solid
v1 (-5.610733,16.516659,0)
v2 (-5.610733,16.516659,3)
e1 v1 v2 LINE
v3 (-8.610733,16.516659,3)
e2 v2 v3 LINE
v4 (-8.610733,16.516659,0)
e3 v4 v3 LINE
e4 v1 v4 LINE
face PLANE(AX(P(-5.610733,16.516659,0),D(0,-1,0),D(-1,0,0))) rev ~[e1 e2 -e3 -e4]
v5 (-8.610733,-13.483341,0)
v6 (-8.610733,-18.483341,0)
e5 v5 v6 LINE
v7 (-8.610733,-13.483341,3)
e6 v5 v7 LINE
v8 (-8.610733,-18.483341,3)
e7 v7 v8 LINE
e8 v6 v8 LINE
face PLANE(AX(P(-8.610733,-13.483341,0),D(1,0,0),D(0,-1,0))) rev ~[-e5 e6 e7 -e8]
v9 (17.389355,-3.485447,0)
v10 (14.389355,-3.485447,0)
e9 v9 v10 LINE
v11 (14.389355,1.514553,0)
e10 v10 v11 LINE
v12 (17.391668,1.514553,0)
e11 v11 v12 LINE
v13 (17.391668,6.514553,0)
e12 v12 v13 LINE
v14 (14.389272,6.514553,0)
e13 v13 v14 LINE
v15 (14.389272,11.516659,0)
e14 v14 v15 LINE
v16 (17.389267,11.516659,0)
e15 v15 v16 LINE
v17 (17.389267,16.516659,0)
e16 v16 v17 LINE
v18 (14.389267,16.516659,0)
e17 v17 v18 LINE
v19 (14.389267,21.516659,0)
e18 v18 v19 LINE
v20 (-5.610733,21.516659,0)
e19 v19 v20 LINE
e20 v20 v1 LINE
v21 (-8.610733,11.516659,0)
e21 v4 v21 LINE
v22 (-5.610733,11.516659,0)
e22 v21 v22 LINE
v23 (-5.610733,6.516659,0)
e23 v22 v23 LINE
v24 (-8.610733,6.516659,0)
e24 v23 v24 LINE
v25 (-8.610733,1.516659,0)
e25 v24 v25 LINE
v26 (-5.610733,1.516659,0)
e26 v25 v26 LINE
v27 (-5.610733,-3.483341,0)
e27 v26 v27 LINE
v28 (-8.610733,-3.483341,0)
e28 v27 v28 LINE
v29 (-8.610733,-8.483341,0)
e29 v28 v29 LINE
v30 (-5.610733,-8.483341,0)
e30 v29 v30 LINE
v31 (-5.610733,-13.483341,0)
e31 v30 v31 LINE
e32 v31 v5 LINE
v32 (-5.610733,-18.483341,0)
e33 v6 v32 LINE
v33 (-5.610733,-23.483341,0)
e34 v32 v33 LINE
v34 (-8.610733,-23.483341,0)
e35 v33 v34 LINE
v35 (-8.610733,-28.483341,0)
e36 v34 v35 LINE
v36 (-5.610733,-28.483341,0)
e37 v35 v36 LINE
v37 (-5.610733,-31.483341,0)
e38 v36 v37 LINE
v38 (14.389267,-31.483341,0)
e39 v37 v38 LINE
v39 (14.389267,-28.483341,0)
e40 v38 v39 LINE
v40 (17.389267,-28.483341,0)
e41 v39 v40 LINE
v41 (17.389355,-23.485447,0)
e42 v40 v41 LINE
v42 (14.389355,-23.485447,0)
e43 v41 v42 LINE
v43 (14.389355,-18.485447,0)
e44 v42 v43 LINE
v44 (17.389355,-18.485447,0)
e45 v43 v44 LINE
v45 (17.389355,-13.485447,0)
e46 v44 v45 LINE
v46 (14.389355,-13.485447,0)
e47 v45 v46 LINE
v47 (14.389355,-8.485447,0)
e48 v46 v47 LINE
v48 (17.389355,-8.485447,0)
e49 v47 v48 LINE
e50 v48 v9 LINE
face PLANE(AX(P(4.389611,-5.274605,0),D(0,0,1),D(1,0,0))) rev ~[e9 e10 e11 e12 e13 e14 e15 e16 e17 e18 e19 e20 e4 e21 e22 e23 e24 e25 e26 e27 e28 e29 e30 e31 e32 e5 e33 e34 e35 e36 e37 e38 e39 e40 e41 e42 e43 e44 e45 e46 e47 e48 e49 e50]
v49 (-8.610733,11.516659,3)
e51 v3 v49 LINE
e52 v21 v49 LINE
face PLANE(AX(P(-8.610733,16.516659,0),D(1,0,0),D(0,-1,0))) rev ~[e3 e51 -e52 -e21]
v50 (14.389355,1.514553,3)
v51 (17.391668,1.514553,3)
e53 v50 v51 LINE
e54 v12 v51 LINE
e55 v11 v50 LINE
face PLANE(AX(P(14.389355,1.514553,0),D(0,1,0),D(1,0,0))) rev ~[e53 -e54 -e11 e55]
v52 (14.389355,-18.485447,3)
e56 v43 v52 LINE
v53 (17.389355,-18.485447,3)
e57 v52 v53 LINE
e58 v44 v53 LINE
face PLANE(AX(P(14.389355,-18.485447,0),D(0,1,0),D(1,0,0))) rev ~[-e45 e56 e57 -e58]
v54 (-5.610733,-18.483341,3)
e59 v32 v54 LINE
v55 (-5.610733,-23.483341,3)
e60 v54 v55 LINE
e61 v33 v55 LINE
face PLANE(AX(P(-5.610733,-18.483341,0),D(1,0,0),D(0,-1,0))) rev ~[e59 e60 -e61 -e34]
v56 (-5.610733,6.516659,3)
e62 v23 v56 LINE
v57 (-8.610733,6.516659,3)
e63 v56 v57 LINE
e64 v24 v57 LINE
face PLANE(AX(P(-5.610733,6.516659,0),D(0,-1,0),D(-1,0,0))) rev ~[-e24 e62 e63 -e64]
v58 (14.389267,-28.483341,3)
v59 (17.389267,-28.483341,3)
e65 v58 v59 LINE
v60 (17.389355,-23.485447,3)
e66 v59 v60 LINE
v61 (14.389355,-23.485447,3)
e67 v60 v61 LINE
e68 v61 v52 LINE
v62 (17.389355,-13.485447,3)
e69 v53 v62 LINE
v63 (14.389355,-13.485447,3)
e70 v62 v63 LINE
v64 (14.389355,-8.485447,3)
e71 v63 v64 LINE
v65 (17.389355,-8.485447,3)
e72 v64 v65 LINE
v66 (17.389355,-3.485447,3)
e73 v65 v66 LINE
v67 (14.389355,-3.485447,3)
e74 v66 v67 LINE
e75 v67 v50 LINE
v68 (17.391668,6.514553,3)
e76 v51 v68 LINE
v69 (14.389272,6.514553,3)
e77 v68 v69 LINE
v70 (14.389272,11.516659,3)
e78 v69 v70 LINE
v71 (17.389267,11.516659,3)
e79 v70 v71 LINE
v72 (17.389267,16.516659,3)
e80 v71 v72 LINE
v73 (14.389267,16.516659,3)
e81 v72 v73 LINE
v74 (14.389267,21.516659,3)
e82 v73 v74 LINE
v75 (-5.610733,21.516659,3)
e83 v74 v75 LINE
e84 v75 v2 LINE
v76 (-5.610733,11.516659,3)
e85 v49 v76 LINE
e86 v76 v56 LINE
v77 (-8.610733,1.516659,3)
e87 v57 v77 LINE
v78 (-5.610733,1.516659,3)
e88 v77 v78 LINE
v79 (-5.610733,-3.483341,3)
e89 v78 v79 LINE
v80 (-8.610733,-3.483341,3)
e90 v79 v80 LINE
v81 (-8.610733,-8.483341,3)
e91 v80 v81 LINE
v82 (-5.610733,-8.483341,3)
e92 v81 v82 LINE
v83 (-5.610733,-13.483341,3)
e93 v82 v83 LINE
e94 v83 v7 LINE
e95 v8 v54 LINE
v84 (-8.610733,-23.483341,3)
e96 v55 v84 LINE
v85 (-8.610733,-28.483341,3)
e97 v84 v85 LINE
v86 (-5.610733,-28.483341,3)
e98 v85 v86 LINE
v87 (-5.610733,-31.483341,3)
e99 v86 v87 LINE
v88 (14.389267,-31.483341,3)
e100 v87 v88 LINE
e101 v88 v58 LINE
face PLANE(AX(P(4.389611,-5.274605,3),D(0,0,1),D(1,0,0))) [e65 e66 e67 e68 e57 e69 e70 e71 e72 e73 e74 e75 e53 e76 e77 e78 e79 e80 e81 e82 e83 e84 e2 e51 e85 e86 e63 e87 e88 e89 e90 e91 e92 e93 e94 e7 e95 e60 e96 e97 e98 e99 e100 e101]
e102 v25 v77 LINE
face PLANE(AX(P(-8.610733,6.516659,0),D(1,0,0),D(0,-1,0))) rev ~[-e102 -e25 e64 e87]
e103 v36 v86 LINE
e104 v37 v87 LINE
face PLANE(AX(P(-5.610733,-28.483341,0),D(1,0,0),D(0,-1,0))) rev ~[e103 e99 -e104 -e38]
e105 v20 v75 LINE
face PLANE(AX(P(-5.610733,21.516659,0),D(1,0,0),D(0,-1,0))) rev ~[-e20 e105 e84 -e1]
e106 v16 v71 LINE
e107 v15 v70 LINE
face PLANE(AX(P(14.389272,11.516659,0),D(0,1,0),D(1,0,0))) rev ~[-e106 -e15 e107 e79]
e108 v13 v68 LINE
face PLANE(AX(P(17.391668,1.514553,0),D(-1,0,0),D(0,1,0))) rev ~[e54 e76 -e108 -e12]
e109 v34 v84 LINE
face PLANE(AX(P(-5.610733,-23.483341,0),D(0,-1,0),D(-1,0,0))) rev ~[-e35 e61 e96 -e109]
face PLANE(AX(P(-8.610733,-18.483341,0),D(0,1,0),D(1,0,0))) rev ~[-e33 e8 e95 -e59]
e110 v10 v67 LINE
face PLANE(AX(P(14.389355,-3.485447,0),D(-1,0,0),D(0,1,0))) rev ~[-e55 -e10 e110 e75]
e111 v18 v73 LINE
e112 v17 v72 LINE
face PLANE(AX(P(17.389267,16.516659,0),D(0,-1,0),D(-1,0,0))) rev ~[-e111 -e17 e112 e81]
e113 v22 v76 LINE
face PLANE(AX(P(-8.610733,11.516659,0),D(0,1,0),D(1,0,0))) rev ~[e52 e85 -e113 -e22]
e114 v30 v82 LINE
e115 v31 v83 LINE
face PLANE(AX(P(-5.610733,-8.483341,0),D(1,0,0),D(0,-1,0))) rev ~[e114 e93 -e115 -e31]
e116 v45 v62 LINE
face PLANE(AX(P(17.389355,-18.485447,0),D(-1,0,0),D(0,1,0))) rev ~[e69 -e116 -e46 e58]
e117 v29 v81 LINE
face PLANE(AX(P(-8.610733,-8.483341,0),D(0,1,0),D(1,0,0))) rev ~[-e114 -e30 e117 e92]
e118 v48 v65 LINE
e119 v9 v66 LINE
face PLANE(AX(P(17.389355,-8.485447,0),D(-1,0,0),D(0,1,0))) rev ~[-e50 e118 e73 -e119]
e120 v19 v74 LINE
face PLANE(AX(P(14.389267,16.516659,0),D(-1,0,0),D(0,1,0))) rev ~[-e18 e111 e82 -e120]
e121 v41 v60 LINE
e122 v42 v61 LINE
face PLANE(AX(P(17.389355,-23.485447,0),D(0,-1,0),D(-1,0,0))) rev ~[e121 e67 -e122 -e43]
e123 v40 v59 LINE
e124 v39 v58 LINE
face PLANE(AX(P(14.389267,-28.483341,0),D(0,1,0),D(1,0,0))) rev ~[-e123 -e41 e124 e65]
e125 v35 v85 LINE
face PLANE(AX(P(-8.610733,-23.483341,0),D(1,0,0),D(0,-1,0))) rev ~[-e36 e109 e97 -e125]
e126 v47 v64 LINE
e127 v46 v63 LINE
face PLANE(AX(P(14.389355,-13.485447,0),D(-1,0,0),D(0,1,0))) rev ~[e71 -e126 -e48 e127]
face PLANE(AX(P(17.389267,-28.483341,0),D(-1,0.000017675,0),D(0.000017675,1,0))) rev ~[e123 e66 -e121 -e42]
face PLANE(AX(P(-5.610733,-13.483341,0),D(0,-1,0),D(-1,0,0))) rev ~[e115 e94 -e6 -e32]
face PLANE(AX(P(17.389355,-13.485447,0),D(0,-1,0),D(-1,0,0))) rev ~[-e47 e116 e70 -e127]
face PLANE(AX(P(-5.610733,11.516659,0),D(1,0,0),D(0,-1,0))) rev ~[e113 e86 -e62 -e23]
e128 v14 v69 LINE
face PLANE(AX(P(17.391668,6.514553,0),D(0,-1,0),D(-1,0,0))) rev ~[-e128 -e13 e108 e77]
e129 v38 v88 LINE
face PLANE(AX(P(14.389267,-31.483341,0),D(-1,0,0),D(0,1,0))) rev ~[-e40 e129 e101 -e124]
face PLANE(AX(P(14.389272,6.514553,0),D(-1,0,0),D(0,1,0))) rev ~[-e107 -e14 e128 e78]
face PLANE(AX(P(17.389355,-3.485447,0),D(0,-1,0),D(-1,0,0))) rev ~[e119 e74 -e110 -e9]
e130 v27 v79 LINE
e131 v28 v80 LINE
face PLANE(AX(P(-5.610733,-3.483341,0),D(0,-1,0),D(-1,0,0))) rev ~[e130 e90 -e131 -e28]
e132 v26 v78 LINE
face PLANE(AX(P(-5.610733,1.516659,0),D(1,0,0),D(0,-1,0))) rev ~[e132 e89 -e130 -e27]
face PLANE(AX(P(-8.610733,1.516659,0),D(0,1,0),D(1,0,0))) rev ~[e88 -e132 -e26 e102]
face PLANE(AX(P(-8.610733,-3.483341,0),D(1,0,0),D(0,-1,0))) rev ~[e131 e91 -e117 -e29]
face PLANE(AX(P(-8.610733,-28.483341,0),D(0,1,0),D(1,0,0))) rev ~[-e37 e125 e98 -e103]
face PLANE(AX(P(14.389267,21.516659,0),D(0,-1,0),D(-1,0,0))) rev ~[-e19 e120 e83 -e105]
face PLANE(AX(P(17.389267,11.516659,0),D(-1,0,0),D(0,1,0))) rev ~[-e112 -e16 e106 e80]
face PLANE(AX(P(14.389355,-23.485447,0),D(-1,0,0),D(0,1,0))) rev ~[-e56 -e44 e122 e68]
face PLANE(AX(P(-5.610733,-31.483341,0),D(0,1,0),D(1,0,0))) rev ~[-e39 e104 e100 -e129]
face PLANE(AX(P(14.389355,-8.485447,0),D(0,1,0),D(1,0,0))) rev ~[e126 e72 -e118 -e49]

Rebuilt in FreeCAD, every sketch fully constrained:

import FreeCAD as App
import Part
import Sketcher
from FreeCAD import Vector

doc = App.newDocument("Part")
body = doc.addObject("PartDesign::Body", "Body")

sketch1 = doc.addObject("Sketcher::SketchObject", "Sketch")
body.addObject(sketch1)
sketch1.AttachmentSupport = (doc.XY_Plane, [""])
sketch1.MapMode = "FlatFace"
sketch1.addGeometry([
    Part.LineSegment(Vector(-5.6, 21.5, 0), Vector(-5.6, 16.5, 0)),
    Part.LineSegment(Vector(-5.6, 16.5, 0), Vector(-8.6, 16.5, 0)),
    Part.LineSegment(Vector(-8.6, 16.5, 0), Vector(-8.6, 11.5, 0)),
    Part.LineSegment(Vector(-8.6, 11.5, 0), Vector(-5.6, 11.5, 0)),
    Part.LineSegment(Vector(-5.6, 11.5, 0), Vector(-5.6, 6.5, 0)),
    Part.LineSegment(Vector(-5.6, 6.5, 0), Vector(-8.6, 6.5, 0)),
    Part.LineSegment(Vector(-8.6, 6.5, 0), Vector(-8.6, 1.5, 0)),
    Part.LineSegment(Vector(-8.6, 1.5, 0), Vector(-5.6, 1.5, 0)),
    Part.LineSegment(Vector(-5.6, 1.5, 0), Vector(-5.6, -3.5, 0)),
    Part.LineSegment(Vector(-5.6, -3.5, 0), Vector(-8.6, -3.5, 0)),
    Part.LineSegment(Vector(-8.6, -3.5, 0), Vector(-8.6, -8.5, 0)),
    Part.LineSegment(Vector(-8.6, -8.5, 0), Vector(-5.6, -8.5, 0)),
    Part.LineSegment(Vector(-5.6, -8.5, 0), Vector(-5.6, -13.5, 0)),
    Part.LineSegment(Vector(-5.6, -13.5, 0), Vector(-8.6, -13.5, 0)),
    Part.LineSegment(Vector(-8.6, -13.5, 0), Vector(-8.6, -18.5, 0)),
    Part.LineSegment(Vector(-8.6, -18.5, 0), Vector(-5.6, -18.5, 0)),
    Part.LineSegment(Vector(-5.6, -18.5, 0), Vector(-5.6, -23.5, 0)),
    Part.LineSegment(Vector(-5.6, -23.5, 0), Vector(-8.6, -23.5, 0)),
    Part.LineSegment(Vector(-8.6, -23.5, 0), Vector(-8.6, -28.5, 0)),
    Part.LineSegment(Vector(-8.6, -28.5, 0), Vector(-5.6, -28.5, 0)),
    Part.LineSegment(Vector(-5.6, -28.5, 0), Vector(-5.6, -31.5, 0)),
    Part.LineSegment(Vector(-5.6, -31.5, 0), Vector(14.4, -31.5, 0)),
    Part.LineSegment(Vector(14.4, -31.5, 0), Vector(14.4, -28.5, 0)),
    Part.LineSegment(Vector(14.4, -28.5, 0), Vector(17.4, -28.5, 0)),
    Part.LineSegment(Vector(17.4, -28.5, 0), Vector(17.4, -23.5, 0)),
    Part.LineSegment(Vector(17.4, -23.5, 0), Vector(14.4, -23.5, 0)),
    Part.LineSegment(Vector(14.4, -23.5, 0), Vector(14.4, -18.5, 0)),
    Part.LineSegment(Vector(14.4, -18.5, 0), Vector(17.4, -18.5, 0)),
    Part.LineSegment(Vector(17.4, -18.5, 0), Vector(17.4, -13.5, 0)),
    Part.LineSegment(Vector(17.4, -13.5, 0), Vector(14.4, -13.5, 0)),
    Part.LineSegment(Vector(14.4, -13.5, 0), Vector(14.4, -8.5, 0)),
    Part.LineSegment(Vector(14.4, -8.5, 0), Vector(17.4, -8.5, 0)),
    Part.LineSegment(Vector(17.4, -8.5, 0), Vector(17.4, -3.5, 0)),
    Part.LineSegment(Vector(17.4, -3.5, 0), Vector(14.4, -3.5, 0)),
    Part.LineSegment(Vector(14.4, -3.5, 0), Vector(14.4, 1.5, 0)),
    Part.LineSegment(Vector(14.4, 1.5, 0), Vector(17.4, 1.5, 0)),
    Part.LineSegment(Vector(17.4, 1.5, 0), Vector(17.4, 6.5, 0)),
    Part.LineSegment(Vector(17.4, 6.5, 0), Vector(14.4, 6.5, 0)),
    Part.LineSegment(Vector(14.4, 6.5, 0), Vector(14.4, 11.5, 0)),
    Part.LineSegment(Vector(14.4, 11.5, 0), Vector(17.4, 11.5, 0)),
    Part.LineSegment(Vector(17.4, 11.5, 0), Vector(17.4, 16.5, 0)),
    Part.LineSegment(Vector(17.4, 16.5, 0), Vector(14.4, 16.5, 0)),
    Part.LineSegment(Vector(14.4, 16.5, 0), Vector(14.4, 21.5, 0)),
    Part.LineSegment(Vector(14.4, 21.5, 0), Vector(-5.6, 21.5, 0)),
], False)
sketch1.addConstraint([
    Sketcher.Constraint("Coincident", 0, 2, 1, 1),
    Sketcher.Constraint("Coincident", 1, 2, 2, 1),
    Sketcher.Constraint("Coincident", 2, 2, 3, 1),
    Sketcher.Constraint("Coincident", 3, 2, 4, 1),
    Sketcher.Constraint("Coincident", 4, 2, 5, 1),
    Sketcher.Constraint("Coincident", 5, 2, 6, 1),
    Sketcher.Constraint("Coincident", 6, 2, 7, 1),
    Sketcher.Constraint("Coincident", 7, 2, 8, 1),
    Sketcher.Constraint("Coincident", 8, 2, 9, 1),
    Sketcher.Constraint("Coincident", 9, 2, 10, 1),
    Sketcher.Constraint("Coincident", 10, 2, 11, 1),
    Sketcher.Constraint("Coincident", 11, 2, 12, 1),
    Sketcher.Constraint("Coincident", 12, 2, 13, 1),
    Sketcher.Constraint("Coincident", 13, 2, 14, 1),
    Sketcher.Constraint("Coincident", 14, 2, 15, 1),
    Sketcher.Constraint("Coincident", 15, 2, 16, 1),
    Sketcher.Constraint("Coincident", 16, 2, 17, 1),
    Sketcher.Constraint("Coincident", 17, 2, 18, 1),
    Sketcher.Constraint("Coincident", 18, 2, 19, 1),
    Sketcher.Constraint("Coincident", 19, 2, 20, 1),
    Sketcher.Constraint("Coincident", 20, 2, 21, 1),
    Sketcher.Constraint("Coincident", 21, 2, 22, 1),
    Sketcher.Constraint("Coincident", 22, 2, 23, 1),
    Sketcher.Constraint("Coincident", 23, 2, 24, 1),
    Sketcher.Constraint("Coincident", 24, 2, 25, 1),
    Sketcher.Constraint("Coincident", 25, 2, 26, 1),
    Sketcher.Constraint("Coincident", 26, 2, 27, 1),
    Sketcher.Constraint("Coincident", 27, 2, 28, 1),
    Sketcher.Constraint("Coincident", 28, 2, 29, 1),
    Sketcher.Constraint("Coincident", 29, 2, 30, 1),
    Sketcher.Constraint("Coincident", 30, 2, 31, 1),
    Sketcher.Constraint("Coincident", 31, 2, 32, 1),
    Sketcher.Constraint("Coincident", 32, 2, 33, 1),
    Sketcher.Constraint("Coincident", 33, 2, 34, 1),
    Sketcher.Constraint("Coincident", 34, 2, 35, 1),
    Sketcher.Constraint("Coincident", 35, 2, 36, 1),
    Sketcher.Constraint("Coincident", 36, 2, 37, 1),
    Sketcher.Constraint("Coincident", 37, 2, 38, 1),
    Sketcher.Constraint("Coincident", 38, 2, 39, 1),
    Sketcher.Constraint("Coincident", 39, 2, 40, 1),
    Sketcher.Constraint("Coincident", 40, 2, 41, 1),
    Sketcher.Constraint("Coincident", 41, 2, 42, 1),
    Sketcher.Constraint("Coincident", 42, 2, 43, 1),
    Sketcher.Constraint("Coincident", 43, 2, 0, 1),
    Sketcher.Constraint("Vertical", 0),
    Sketcher.Constraint("Horizontal", 1),
    Sketcher.Constraint("Vertical", 2),
    Sketcher.Constraint("Horizontal", 3),
    Sketcher.Constraint("Vertical", 4),
    Sketcher.Constraint("Horizontal", 5),
    Sketcher.Constraint("Vertical", 6),
    Sketcher.Constraint("Horizontal", 7),
    Sketcher.Constraint("Vertical", 8),
    Sketcher.Constraint("Horizontal", 9),
    Sketcher.Constraint("Vertical", 10),
    Sketcher.Constraint("Horizontal", 11),
    Sketcher.Constraint("Vertical", 12),
    Sketcher.Constraint("Horizontal", 13),
    Sketcher.Constraint("Vertical", 14),
    Sketcher.Constraint("Horizontal", 15),
    Sketcher.Constraint("Vertical", 16),
    Sketcher.Constraint("Horizontal", 17),
    Sketcher.Constraint("Vertical", 18),
    Sketcher.Constraint("Horizontal", 19),
    Sketcher.Constraint("Vertical", 20),
    Sketcher.Constraint("Horizontal", 21),
    Sketcher.Constraint("Vertical", 22),
    Sketcher.Constraint("Horizontal", 23),
    Sketcher.Constraint("Horizontal", 25),
    Sketcher.Constraint("Vertical", 26),
    Sketcher.Constraint("Horizontal", 27),
    Sketcher.Constraint("Vertical", 28),
    Sketcher.Constraint("Horizontal", 29),
    Sketcher.Constraint("Vertical", 30),
    Sketcher.Constraint("Horizontal", 31),
    Sketcher.Constraint("Vertical", 32),
    Sketcher.Constraint("Horizontal", 33),
    Sketcher.Constraint("Vertical", 34),
    Sketcher.Constraint("Horizontal", 35),
    Sketcher.Constraint("Vertical", 36),
    Sketcher.Constraint("Horizontal", 37),
    Sketcher.Constraint("Vertical", 38),
    Sketcher.Constraint("Horizontal", 39),
    Sketcher.Constraint("Vertical", 40),
    Sketcher.Constraint("Horizontal", 41),
    Sketcher.Constraint("Vertical", 42),
    Sketcher.Constraint("Horizontal", 43),
    Sketcher.Constraint("Horizontal", 19, 2, 22, 2),
    Sketcher.Constraint("Horizontal", 3, 2, 38, 2),
    Sketcher.Constraint("Horizontal", 1, 2, 40, 2),
    Sketcher.Constraint("Vertical", 0, 2, 3, 2),
    Sketcher.Constraint("Vertical", 2, 2, 5, 2),
    Sketcher.Constraint("Vertical", 4, 2, 7, 2),
    Sketcher.Constraint("Vertical", 6, 2, 9, 2),
    Sketcher.Constraint("Vertical", 8, 2, 11, 2),
    Sketcher.Constraint("Vertical", 10, 2, 13, 2),
    Sketcher.Constraint("Vertical", 12, 2, 15, 2),
    Sketcher.Constraint("Vertical", 14, 2, 17, 2),
    Sketcher.Constraint("Vertical", 16, 2, 19, 2),
    Sketcher.Constraint("Vertical", 24, 2, 27, 2),
    Sketcher.Constraint("Vertical", 26, 2, 29, 2),
    Sketcher.Constraint("Vertical", 28, 2, 31, 2),
    Sketcher.Constraint("Vertical", 30, 2, 33, 2),
    Sketcher.Constraint("Vertical", 23, 2, 39, 2),
    Sketcher.Constraint("Vertical", 22, 2, 41, 2),
    Sketcher.Constraint("Equal", 19, 23),
    Sketcher.Constraint("Equal", 23, 25),
    Sketcher.Constraint("Equal", 0, 2),
    Sketcher.Constraint("Equal", 2, 4),
    Sketcher.Constraint("Equal", 4, 6),
    Sketcher.Constraint("Equal", 6, 8),
    Sketcher.Constraint("Equal", 8, 10),
    Sketcher.Constraint("Equal", 10, 12),
    Sketcher.Constraint("Equal", 12, 14),
    Sketcher.Constraint("Equal", 14, 16),
    Sketcher.Constraint("Equal", 16, 18),
    Sketcher.Constraint("Equal", 41, 20),
    Sketcher.Constraint("Equal", 18, 26),
    Sketcher.Constraint("Equal", 26, 28),
    Sketcher.Constraint("Equal", 28, 30),
    Sketcher.Constraint("Equal", 30, 32),
    Sketcher.Constraint("Equal", 32, 34),
    Sketcher.Constraint("Equal", 34, 36),
    Sketcher.Constraint("DistanceX", 1, 2, 1, 1, 3.0),
    Sketcher.Constraint("DistanceX", 21, 1, 21, 2, 20.0),
    Sketcher.Constraint("DistanceY", 0, 2, 0, 1, 5.0),
    Sketcher.Constraint("DistanceX", 39, 2, 36, 2, 0.002402),
    Sketcher.Constraint("DistanceX", 35, 1, 35, 2, 3.002313),
    Sketcher.Constraint("DistanceX", 37, 2, 37, 1, 3.002397),
    Sketcher.Constraint("DistanceY", 38, 1, 38, 2, 5.002106),
    Sketcher.Constraint("DistanceY", -1, 1, 0, 2, 16.516659),
    Sketcher.Constraint("DistanceX", -1, 1, 35, 2, 17.391668),
])
pad1 = doc.addObject("PartDesign::Pad", "Pad")
body.addObject(pad1)
pad1.Profile = sketch1
pad1.Length = 3

doc.recompute()
